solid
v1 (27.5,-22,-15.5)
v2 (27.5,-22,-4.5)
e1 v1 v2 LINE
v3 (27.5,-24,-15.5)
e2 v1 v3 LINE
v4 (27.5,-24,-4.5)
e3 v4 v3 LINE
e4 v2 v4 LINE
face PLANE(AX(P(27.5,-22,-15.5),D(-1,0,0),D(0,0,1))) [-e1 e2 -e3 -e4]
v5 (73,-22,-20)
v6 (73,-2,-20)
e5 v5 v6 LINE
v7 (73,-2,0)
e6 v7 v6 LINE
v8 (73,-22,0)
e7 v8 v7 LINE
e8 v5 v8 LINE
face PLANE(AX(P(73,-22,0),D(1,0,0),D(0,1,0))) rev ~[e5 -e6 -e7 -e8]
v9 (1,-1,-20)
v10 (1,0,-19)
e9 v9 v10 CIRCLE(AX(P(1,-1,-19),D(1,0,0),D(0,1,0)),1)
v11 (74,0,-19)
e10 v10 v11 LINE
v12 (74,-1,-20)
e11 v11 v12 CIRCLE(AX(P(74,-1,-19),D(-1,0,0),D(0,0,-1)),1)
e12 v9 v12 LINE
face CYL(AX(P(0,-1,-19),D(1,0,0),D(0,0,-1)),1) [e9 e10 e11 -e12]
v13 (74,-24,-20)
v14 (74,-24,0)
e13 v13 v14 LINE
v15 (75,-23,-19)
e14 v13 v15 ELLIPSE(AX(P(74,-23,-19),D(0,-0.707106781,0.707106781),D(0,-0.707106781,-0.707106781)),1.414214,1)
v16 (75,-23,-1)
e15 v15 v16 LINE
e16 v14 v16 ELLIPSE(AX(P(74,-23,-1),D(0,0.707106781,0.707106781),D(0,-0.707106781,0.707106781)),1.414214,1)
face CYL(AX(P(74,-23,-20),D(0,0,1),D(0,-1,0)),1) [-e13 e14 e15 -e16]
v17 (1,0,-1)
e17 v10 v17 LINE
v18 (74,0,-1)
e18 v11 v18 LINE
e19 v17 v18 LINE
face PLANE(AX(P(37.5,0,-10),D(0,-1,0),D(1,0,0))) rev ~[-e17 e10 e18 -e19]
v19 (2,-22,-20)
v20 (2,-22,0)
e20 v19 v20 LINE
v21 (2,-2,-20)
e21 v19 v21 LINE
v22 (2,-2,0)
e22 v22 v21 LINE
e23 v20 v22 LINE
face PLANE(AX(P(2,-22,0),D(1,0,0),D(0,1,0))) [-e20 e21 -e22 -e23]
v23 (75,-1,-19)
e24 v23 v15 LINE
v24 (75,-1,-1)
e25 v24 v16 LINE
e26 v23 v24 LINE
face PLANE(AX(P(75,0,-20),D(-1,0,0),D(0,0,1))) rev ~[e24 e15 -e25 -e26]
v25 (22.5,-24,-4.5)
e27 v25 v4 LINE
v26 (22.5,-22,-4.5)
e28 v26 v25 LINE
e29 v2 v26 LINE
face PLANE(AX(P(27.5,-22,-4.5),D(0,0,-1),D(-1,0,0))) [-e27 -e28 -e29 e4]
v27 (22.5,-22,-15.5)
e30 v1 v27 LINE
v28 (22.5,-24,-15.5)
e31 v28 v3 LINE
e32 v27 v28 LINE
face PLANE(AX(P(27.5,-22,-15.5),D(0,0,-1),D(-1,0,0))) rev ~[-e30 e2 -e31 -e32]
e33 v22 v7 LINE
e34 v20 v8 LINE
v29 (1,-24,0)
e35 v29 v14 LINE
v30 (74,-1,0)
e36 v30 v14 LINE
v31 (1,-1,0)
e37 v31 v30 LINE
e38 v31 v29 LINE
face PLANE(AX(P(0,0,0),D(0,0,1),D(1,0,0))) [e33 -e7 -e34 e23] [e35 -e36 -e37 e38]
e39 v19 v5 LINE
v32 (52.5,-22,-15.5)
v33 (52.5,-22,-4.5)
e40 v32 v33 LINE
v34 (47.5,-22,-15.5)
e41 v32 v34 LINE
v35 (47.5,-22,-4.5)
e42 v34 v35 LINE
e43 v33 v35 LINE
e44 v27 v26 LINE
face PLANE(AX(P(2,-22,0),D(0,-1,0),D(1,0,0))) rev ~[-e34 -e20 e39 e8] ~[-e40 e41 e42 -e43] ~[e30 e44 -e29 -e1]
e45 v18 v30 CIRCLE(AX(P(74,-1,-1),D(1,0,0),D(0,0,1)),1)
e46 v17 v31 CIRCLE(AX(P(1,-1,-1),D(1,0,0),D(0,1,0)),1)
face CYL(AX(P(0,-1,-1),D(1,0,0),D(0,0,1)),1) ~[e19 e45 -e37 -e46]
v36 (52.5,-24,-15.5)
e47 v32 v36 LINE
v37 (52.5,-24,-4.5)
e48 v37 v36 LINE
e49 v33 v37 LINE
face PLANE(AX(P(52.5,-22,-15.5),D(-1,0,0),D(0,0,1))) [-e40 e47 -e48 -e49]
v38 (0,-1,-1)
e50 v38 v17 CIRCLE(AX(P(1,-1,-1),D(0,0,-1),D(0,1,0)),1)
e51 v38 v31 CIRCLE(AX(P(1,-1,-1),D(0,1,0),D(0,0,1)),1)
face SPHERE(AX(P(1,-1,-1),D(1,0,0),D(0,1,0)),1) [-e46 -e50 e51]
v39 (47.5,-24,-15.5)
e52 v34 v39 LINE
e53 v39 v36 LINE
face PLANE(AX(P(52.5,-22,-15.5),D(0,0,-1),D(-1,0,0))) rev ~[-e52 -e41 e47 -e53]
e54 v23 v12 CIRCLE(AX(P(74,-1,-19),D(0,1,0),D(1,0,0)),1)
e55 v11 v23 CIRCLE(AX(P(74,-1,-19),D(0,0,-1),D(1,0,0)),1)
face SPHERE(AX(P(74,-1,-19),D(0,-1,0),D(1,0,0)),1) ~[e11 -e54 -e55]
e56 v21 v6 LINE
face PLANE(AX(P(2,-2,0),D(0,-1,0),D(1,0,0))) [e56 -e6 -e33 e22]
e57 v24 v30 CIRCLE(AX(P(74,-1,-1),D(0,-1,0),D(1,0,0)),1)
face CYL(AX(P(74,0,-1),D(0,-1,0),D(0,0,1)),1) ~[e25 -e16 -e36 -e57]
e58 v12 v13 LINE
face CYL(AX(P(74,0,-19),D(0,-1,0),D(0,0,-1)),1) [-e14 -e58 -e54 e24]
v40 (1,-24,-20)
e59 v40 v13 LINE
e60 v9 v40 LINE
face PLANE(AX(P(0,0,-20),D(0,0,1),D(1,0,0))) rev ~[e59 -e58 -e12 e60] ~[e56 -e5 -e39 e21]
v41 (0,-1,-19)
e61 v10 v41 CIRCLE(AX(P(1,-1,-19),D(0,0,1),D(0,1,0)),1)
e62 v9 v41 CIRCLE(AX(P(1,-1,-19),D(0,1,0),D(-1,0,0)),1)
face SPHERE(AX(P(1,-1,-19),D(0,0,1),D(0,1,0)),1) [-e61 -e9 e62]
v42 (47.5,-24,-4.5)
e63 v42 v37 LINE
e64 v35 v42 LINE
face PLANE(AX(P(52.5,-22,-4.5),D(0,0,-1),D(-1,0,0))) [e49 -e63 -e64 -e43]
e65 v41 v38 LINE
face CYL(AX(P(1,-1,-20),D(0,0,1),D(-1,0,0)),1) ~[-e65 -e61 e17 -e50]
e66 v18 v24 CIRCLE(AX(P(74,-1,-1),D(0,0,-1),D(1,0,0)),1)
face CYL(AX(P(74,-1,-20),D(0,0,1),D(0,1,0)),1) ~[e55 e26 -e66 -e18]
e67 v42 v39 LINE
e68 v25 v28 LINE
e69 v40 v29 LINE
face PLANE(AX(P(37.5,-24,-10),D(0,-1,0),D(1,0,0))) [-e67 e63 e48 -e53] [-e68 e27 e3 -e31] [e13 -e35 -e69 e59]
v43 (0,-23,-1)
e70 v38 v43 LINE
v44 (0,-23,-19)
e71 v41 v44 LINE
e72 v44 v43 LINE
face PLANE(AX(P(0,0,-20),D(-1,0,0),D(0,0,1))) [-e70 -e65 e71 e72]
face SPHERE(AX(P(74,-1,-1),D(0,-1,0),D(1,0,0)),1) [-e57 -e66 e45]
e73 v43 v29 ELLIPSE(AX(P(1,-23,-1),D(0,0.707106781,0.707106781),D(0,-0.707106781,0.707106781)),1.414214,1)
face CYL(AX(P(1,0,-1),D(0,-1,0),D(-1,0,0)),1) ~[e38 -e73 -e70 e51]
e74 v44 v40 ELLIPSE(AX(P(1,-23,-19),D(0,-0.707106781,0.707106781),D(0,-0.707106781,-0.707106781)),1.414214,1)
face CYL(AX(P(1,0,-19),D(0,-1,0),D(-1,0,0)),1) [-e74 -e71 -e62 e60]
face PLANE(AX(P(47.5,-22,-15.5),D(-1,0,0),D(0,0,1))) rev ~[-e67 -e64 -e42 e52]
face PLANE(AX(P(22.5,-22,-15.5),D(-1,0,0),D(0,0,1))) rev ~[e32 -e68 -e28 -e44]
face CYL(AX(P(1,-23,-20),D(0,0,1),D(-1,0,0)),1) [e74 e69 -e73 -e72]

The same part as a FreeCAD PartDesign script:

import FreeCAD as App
import Part
import Sketcher
Q = App.Units.Quantity


def edges_at(feature, points):
    """Names of the edges that pass closest to the given points."""
    edges = feature.Shape.Edges
    near = lambda p: min(range(len(edges)), key=lambda i: edges[i].distToShape(Part.Vertex(*p))[0])
    return sorted({f"Edge{near(p) + 1}" for p in points})

doc = App.newDocument("Part")
body = doc.addObject("PartDesign::Body", "Body")

sketch1 = body.newObject("Sketcher::SketchObject", "Sketch")
sketch1.AttachmentSupport = (doc.getObject("XZ_Plane"), [""])
sketch1.MapMode = "FlatFace"
sketch1.addGeometry([
    Part.LineSegment(App.Vector(0, 0, 0), App.Vector(0, -20, 0)),
    Part.LineSegment(App.Vector(0, -20, 0), App.Vector(75, -20, 0)),
    Part.LineSegment(App.Vector(75, -20, 0), App.Vector(75, 0, 0)),
    Part.LineSegment(App.Vector(75, 0, 0), App.Vector(0, 0, 0)),
], False)
sketch1.addConstraint([
    Sketcher.Constraint("Coincident", 0, 2, 1, 1),
    Sketcher.Constraint("Coincident", 1, 2, 2, 1),
    Sketcher.Constraint("Coincident", 2, 2, 3, 1),
    Sketcher.Constraint("Coincident", 3, 2, 0, 1),
    Sketcher.Constraint("Vertical", 0),
    Sketcher.Constraint("Horizontal", 1),
    Sketcher.Constraint("Vertical", 2),
    Sketcher.Constraint("Horizontal", 3),
    Sketcher.Constraint("Coincident", 3, 2, -1, 1),
    Sketcher.Constraint("DistanceX", 1, 1, 1, 2, Q("75 mm")),
    Sketcher.Constraint("DistanceY", 0, 2, 0, 1, Q("20 mm")),
])
pad1 = body.newObject("PartDesign::Pad", "Pad")
pad1.Profile = sketch1
pad1.Length = 24

sketch2 = body.newObject("Sketcher::SketchObject", "Sketch001")
sketch2.AttachmentSupport = (doc.getObject("XY_Plane"), [""])
sketch2.MapMode = "FlatFace"
sketch2.addGeometry([
    Part.LineSegment(App.Vector(2, -2, 0), App.Vector(2, -22, 0)),
    Part.LineSegment(App.Vector(2, -22, 0), App.Vector(73, -22, 0)),
    Part.LineSegment(App.Vector(73, -22, 0), App.Vector(73, -2, 0)),
    Part.LineSegment(App.Vector(73, -2, 0), App.Vector(2, -2, 0)),
], False)
sketch2.addConstraint([
    Sketcher.Constraint("Coincident", 0, 2, 1, 1),
    Sketcher.Constraint("Coincident", 1, 2, 2, 1),
    Sketcher.Constraint("Coincident", 2, 2, 3, 1),
    Sketcher.Constraint("Coincident", 3, 2, 0, 1),
    Sketcher.Constraint("Vertical", 0),
    Sketcher.Constraint("Horizontal", 1),
    Sketcher.Constraint("Vertical", 2),
    Sketcher.Constraint("Horizontal", 3),
    Sketcher.Constraint("DistanceX", 1, 1, 1, 2, Q("71 mm")),
    Sketcher.Constraint("DistanceY", 0, 2, 0, 1, Q("20 mm")),
    Sketcher.Constraint("DistanceX", -1, 1, 0, 2, Q("2 mm")),
    Sketcher.Constraint("DistanceY", 0, 2, -1, 1, Q("22 mm")),
])
pocket1 = body.newObject("PartDesign::Pocket", "Pocket")
pocket1.Profile = sketch2
pocket1.Length = 40
pocket1.Midplane = True

sketch3 = body.newObject("Sketcher::SketchObject", "Sketch002")
sketch3.AttachmentSupport = (doc.getObject("XZ_Plane"), [""])
sketch3.MapMode = "FlatFace"
sketch3.AttachmentOffset = App.Placement(App.Vector(0, 0, 22), App.Rotation())
sketch3.addGeometry([
    Part.LineSegment(App.Vector(27.5, -4.5, 0), App.Vector(27.5, -15.5, 0)),
    Part.LineSegment(App.Vector(27.5, -15.5, 0), App.Vector(22.5, -15.5, 0)),
    Part.LineSegment(App.Vector(22.5, -15.5, 0), App.Vector(22.5, -4.5, 0)),
    Part.LineSegment(App.Vector(22.5, -4.5, 0), App.Vector(27.5, -4.5, 0)),
    Part.LineSegment(App.Vector(52.5, -4.5, 0), App.Vector(52.5, -15.5, 0)),
    Part.LineSegment(App.Vector(52.5, -15.5, 0), App.Vector(47.5, -15.5, 0)),
    Part.LineSegment(App.Vector(47.5, -15.5, 0), App.Vector(47.5, -4.5, 0)),
    Part.LineSegment(App.Vector(47.5, -4.5, 0), App.Vector(52.5, -4.5, 0)),
], False)
sketch3.addConstraint([
    Sketcher.Constraint("Coincident", 0, 2, 1, 1),
    Sketcher.Constraint("Coincident", 1, 2, 2, 1),
    Sketcher.Constraint("Coincident", 2, 2, 3, 1),
    Sketcher.Constraint("Coincident", 3, 2, 0, 1),
    Sketcher.Constraint("Coincident", 4, 2, 5, 1),
    Sketcher.Constraint("Coincident", 5, 2, 6, 1),
    Sketcher.Constraint("Coincident", 6, 2, 7, 1),
    Sketcher.Constraint("Coincident", 7, 2, 4, 1),
    Sketcher.Constraint("Vertical", 0),
    Sketcher.Constraint("Horizontal", 1),
    Sketcher.Constraint("Vertical", 2),
    Sketcher.Constraint("Horizontal", 3),
    Sketcher.Constraint("Vertical", 4),
    Sketcher.Constraint("Horizontal", 5),
    Sketcher.Constraint("Vertical", 6),
    Sketcher.Constraint("Horizontal", 7),
    Sketcher.Constraint("Horizontal", 1, 2, 4, 2),
    Sketcher.Constraint("Horizontal", 3, 2, 6, 2),
    Sketcher.Constraint("Equal", 3, 5),
    Sketcher.Constraint("DistanceX", 1, 2, 1, 1, Q("5 mm")),
    Sketcher.Constraint("DistanceY", 0, 2, 0, 1, Q("11 mm")),
    Sketcher.Constraint("DistanceX", 0, 2, 4, 2, Q("25 mm")),
    Sketcher.Constraint("DistanceX", -1, 1, 0, 2, Q("27.5 mm")),
    Sketcher.Constraint("DistanceY", 0, 2, -1, 1, Q("15.5 mm")),
])
pocket2 = body.newObject("PartDesign::Pocket", "Pocket001")
pocket2.Profile = sketch3
pocket2.Length = 5
pocket2.Reversed = True
doc.recompute()

fillet = body.newObject("PartDesign::Fillet", "Fillet")
fillet.Base = (pocket2, edges_at(pocket2, [
    (75, -12, -20),
    (75, -12, 0),
    (75, 0, -10),
    (75, -24, -10),
    (37.5, 0, 0),
    (0, 0, -10),
    (37.5, 0, -20),
    (0, -12, 0),
    (0, -12, -20),
    (0, -24, -10),
]))
fillet.Radius = 1

doc.recompute()
